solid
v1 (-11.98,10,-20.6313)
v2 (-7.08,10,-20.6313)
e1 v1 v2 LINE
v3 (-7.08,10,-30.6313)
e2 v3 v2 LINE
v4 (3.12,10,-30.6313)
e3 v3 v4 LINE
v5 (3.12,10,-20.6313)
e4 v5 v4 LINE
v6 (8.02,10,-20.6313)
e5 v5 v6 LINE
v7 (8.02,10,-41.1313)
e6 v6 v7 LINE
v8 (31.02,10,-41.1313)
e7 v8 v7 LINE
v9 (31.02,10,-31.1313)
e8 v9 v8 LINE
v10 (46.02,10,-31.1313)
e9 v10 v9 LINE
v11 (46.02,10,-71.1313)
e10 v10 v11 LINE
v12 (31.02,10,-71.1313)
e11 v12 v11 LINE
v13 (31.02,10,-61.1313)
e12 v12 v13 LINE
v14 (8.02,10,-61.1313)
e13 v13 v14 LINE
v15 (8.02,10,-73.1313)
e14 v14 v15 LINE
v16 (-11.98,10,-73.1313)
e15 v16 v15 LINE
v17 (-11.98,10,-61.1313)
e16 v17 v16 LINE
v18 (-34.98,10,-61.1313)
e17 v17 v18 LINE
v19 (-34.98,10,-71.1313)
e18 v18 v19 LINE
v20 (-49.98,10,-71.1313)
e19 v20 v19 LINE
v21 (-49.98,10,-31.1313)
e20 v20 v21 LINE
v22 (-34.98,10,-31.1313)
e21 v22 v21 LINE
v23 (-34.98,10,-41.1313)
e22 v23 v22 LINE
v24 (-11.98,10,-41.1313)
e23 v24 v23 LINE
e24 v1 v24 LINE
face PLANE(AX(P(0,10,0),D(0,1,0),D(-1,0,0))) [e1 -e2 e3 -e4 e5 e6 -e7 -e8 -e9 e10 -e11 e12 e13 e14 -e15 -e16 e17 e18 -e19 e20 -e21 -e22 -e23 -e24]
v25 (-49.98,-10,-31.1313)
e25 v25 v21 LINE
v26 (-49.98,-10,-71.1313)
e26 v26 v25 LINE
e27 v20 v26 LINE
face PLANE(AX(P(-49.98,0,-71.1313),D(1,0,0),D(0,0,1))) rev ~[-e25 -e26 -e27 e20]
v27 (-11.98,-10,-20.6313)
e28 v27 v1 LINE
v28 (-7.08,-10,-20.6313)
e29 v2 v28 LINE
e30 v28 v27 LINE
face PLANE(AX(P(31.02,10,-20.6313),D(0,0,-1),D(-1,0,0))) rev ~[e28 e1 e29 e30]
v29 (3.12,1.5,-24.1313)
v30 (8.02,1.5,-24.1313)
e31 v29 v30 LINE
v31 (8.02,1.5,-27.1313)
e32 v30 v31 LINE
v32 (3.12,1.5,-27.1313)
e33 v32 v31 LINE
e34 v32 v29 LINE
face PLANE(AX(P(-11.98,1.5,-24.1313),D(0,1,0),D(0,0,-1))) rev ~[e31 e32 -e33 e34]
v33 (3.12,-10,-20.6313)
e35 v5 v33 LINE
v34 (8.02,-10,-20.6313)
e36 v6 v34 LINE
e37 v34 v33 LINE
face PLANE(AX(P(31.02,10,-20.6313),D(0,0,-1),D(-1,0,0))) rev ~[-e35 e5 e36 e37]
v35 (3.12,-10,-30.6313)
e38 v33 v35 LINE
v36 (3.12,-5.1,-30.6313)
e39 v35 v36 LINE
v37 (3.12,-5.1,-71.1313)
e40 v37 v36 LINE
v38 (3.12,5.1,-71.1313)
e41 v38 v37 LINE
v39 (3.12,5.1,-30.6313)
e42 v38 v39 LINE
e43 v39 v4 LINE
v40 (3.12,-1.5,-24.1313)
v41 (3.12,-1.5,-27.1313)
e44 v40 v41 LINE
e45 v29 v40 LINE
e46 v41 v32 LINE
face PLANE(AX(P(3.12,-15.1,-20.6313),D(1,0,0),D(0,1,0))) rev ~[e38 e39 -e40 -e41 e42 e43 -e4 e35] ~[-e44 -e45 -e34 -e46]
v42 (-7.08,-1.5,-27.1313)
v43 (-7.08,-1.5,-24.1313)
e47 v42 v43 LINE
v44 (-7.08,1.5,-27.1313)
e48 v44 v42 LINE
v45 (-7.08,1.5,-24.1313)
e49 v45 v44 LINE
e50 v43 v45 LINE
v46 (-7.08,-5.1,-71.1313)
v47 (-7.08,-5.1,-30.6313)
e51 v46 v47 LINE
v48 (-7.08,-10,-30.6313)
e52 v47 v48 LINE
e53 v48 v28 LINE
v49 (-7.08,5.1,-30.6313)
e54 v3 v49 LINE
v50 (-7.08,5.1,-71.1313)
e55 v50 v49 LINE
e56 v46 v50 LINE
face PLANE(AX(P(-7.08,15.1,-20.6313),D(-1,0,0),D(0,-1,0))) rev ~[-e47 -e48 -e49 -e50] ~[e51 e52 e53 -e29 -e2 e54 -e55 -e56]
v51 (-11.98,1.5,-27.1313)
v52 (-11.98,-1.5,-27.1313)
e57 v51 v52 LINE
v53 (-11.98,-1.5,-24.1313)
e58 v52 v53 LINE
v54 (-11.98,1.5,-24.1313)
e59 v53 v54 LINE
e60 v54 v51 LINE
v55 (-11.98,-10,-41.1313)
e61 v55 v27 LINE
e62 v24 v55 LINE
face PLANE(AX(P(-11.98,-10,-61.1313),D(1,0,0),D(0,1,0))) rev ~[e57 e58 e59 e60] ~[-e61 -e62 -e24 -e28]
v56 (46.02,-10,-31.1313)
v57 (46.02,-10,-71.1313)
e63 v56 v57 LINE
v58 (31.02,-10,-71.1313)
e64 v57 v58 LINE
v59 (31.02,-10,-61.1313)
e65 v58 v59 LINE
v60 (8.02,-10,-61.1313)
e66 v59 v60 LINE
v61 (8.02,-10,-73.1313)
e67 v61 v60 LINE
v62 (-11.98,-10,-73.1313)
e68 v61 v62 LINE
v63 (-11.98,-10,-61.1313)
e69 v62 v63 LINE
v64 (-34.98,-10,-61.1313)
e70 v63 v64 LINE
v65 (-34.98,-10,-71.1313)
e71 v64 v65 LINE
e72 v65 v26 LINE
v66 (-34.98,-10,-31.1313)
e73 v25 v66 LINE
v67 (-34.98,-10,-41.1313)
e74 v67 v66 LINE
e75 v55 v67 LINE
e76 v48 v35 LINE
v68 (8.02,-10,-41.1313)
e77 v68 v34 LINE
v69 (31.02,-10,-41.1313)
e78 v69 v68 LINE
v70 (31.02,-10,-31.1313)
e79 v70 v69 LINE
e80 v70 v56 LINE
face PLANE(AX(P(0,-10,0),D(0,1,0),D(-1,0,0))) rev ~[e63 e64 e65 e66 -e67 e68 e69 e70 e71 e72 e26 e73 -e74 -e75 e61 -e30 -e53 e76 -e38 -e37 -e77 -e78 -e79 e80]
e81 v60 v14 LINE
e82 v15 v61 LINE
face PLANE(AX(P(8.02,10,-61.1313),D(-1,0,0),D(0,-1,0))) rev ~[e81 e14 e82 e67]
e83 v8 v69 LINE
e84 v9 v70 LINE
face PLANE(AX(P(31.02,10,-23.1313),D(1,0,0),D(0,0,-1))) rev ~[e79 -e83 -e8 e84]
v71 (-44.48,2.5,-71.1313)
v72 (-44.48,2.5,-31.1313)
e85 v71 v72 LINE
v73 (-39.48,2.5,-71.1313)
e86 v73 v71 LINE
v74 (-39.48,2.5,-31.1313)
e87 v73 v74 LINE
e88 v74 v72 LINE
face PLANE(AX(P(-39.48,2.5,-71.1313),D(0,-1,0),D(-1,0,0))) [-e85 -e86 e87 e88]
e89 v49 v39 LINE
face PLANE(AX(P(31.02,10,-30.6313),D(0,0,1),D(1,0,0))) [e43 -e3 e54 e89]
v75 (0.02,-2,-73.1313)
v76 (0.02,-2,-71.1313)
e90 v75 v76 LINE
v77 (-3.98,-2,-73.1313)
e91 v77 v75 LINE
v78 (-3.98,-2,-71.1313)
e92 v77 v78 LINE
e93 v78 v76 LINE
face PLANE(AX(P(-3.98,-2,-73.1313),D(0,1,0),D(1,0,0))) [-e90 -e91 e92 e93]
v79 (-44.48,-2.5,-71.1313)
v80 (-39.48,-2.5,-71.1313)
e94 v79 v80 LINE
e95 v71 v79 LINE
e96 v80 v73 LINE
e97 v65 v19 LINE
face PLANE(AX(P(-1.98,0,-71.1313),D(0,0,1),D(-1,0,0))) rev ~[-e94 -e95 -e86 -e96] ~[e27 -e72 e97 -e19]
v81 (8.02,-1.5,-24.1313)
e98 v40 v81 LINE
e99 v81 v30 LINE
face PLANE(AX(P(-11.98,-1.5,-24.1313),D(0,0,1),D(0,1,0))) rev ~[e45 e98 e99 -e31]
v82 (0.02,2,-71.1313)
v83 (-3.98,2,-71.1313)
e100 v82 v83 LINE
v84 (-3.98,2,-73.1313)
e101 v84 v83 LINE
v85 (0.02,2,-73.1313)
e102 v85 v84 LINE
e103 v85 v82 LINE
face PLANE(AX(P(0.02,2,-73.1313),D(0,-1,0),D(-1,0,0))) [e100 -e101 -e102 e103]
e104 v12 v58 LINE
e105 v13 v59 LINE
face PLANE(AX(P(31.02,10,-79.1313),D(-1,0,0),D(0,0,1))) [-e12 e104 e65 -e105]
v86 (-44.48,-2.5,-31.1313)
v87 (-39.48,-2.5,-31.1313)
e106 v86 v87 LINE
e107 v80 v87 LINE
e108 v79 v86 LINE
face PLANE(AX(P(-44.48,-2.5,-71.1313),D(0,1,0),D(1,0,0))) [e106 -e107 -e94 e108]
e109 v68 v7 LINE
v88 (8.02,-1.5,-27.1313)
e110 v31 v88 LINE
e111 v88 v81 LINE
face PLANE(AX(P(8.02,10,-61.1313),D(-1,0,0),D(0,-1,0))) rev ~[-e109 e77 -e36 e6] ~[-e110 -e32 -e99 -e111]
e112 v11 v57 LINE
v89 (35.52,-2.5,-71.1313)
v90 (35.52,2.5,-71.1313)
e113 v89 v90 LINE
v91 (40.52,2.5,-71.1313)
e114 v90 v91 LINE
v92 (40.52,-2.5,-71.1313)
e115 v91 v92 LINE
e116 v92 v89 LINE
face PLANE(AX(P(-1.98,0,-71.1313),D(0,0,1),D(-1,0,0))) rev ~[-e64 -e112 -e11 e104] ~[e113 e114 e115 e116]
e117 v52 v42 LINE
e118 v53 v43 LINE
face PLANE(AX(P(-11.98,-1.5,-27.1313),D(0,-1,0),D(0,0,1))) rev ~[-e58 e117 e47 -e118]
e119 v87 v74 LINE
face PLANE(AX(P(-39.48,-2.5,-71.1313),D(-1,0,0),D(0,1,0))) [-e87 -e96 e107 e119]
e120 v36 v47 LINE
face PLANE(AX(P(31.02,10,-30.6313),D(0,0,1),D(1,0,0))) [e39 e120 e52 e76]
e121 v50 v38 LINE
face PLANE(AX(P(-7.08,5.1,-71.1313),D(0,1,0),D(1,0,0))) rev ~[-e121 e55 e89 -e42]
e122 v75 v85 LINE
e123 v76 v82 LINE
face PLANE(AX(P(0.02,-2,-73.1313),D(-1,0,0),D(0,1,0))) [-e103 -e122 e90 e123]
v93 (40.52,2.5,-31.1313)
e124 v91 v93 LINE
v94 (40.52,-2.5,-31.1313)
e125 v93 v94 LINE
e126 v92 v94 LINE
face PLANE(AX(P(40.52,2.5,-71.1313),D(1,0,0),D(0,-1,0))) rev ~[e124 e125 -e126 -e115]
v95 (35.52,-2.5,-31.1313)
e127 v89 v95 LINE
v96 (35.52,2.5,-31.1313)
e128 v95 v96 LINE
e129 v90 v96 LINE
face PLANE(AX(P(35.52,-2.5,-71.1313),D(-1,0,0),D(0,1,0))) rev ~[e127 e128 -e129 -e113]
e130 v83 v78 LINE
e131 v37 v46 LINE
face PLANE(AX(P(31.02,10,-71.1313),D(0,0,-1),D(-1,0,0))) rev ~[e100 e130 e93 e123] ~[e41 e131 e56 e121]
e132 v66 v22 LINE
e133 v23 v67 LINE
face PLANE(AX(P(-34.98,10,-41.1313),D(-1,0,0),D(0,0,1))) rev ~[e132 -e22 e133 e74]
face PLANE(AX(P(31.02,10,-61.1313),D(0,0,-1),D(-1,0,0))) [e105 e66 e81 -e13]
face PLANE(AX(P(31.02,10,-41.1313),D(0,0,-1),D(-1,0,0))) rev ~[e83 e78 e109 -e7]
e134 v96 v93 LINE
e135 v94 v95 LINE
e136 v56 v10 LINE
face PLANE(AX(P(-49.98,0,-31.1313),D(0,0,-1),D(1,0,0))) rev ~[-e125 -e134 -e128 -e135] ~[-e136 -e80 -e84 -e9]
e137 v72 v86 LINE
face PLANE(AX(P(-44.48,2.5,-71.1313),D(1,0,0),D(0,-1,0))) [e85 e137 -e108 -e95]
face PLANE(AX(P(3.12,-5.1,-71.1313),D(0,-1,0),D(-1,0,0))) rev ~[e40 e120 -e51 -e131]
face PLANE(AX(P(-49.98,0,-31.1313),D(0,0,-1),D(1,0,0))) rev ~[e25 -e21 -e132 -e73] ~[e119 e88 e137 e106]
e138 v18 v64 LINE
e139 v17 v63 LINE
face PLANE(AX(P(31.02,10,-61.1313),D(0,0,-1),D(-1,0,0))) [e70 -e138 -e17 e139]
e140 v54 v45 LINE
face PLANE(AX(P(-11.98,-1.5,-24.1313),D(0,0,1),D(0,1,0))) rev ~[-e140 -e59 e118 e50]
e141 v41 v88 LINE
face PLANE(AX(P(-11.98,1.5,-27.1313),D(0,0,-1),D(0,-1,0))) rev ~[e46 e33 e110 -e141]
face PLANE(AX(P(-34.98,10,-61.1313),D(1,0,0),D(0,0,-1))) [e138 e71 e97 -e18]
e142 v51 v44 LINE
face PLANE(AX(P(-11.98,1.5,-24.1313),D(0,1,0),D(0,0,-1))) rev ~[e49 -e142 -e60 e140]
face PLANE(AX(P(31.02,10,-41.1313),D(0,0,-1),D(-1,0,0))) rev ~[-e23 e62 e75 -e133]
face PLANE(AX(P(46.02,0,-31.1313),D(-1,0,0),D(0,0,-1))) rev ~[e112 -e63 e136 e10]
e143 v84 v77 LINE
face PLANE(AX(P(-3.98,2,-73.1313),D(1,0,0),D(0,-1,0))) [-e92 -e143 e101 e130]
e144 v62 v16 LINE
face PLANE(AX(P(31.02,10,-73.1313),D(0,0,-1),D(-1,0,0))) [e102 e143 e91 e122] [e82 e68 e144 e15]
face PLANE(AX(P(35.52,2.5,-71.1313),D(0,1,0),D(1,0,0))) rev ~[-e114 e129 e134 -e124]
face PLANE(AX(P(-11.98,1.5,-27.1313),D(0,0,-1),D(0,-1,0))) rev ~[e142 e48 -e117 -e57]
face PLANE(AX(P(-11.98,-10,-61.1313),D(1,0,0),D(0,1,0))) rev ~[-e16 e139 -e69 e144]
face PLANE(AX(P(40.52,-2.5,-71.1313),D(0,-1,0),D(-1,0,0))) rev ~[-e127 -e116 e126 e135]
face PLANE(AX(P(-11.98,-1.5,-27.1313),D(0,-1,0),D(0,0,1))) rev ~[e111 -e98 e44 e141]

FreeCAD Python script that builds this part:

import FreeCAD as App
import Part
import Sketcher

V = App.Vector
Q = App.Units.Quantity

doc = App.newDocument("Part")
body = doc.addObject("PartDesign::Body", "Body")

sketch1 = doc.addObject("Sketcher::SketchObject", "Sketch")
body.addObject(sketch1)
sketch1.AttachmentSupport = (doc.XZ_Plane, [""])
sketch1.MapMode = "FlatFace"
sketch1.addGeometry([
    Part.LineSegment(V(-50, -71, 0), V(-50, -31, 0)),
    Part.LineSegment(V(-50, -31, 0), V(46, -31, 0)),
    Part.LineSegment(V(46, -31, 0), V(46, -71, 0)),
    Part.LineSegment(V(46, -71, 0), V(-50, -71, 0)),
], False)
sketch1.addConstraint([
    Sketcher.Constraint("Coincident", 0, 2, 1, 1),
    Sketcher.Constraint("Coincident", 1, 2, 2, 1),
    Sketcher.Constraint("Coincident", 2, 2, 3, 1),
    Sketcher.Constraint("Coincident", 3, 2, 0, 1),
    Sketcher.Constraint("Vertical", 0),
    Sketcher.Constraint("Horizontal", 1),
    Sketcher.Constraint("Vertical", 2),
    Sketcher.Constraint("Horizontal", 3),
    Sketcher.Constraint("DistanceY", 0, 1, 0, 2, Q("40 mm")),
    Sketcher.Constraint("DistanceX", 1, 1, 1, 2, Q("96 mm")),
    Sketcher.Constraint("DistanceX", 0, 2, -1, 1, Q("49.98 mm")),
    Sketcher.Constraint("DistanceY", 0, 2, -1, 1, Q("31.1313 mm")),
])
pad1 = doc.addObject("PartDesign::Pad", "Pad")
body.addObject(pad1)
pad1.Profile = sketch1
pad1.Length = 20
pad1.Midplane = True

sketch2 = doc.addObject("Sketcher::SketchObject", "Sketch001")
body.addObject(sketch2)
sketch2.AttachmentSupport = (doc.XY_Plane, [""])
sketch2.MapMode = "FlatFace"
sketch2.AttachmentOffset = App.Placement(V(0, 0, -71.1313), App.Rotation())
sketch2.addGeometry([
    Part.LineSegment(V(36, -2, 0), V(36, 2, 0)),
    Part.LineSegment(V(36, 2, 0), V(41, 2, 0)),
    Part.LineSegment(V(41, 2, 0), V(41, -2, 0)),
    Part.LineSegment(V(41, -2, 0), V(36, -2, 0)),
    Part.LineSegment(V(-44, 2, 0), V(-39, 2, 0)),
    Part.LineSegment(V(-39, 2, 0), V(-39, -2, 0)),
    Part.LineSegment(V(-39, -2, 0), V(-44, -2, 0)),
    Part.LineSegment(V(-44, -2, 0), V(-44, 2, 0)),
], False)
sketch2.addConstraint([
    Sketcher.Constraint("Coincident", 0, 2, 1, 1),
    Sketcher.Constraint("Coincident", 1, 2, 2, 1),
    Sketcher.Constraint("Coincident", 2, 2, 3, 1),
    Sketcher.Constraint("Coincident", 3, 2, 0, 1),
    Sketcher.Constraint("Coincident", 4, 2, 5, 1),
    Sketcher.Constraint("Coincident", 5, 2, 6, 1),
    Sketcher.Constraint("Coincident", 6, 2, 7, 1),
    Sketcher.Constraint("Coincident", 7, 2, 4, 1),
    Sketcher.Constraint("Vertical", 0),
    Sketcher.Constraint("Horizontal", 1),
    Sketcher.Constraint("Vertical", 2),
    Sketcher.Constraint("Horizontal", 3),
    Sketcher.Constraint("Horizontal", 4),
    Sketcher.Constraint("Vertical", 5),
    Sketcher.Constraint("Horizontal", 6),
    Sketcher.Constraint("Vertical", 7),
    Sketcher.Constraint("Horizontal", 1, 2, 4, 2),
    Sketcher.Constraint("Horizontal", 3, 2, 5, 2),
    Sketcher.Constraint("Equal", 3, 4),
    Sketcher.Constraint("Equal", 6, 0),
    Sketcher.Constraint("DistanceX", 1, 1, 1, 2, Q("5 mm")),
    Sketcher.Constraint("DistanceX", 4, 2, 0, 2, Q("75 mm")),
    Sketcher.Constraint("DistanceY", -1, 1, 0, 2, Q("2.5 mm")),
    Sketcher.Constraint("DistanceX", -1, 1, 0, 2, Q("35.52 mm")),
])
pocket1 = doc.addObject("PartDesign::Pocket", "Pocket")
body.addObject(pocket1)
pocket1.Profile = sketch2
pocket1.Type = "ThroughAll"
pocket1.Reversed = True

sketch3 = doc.addObject("Sketcher::SketchObject", "Sketch002")
body.addObject(sketch3)
sketch3.AttachmentSupport = (doc.XZ_Plane, [""])
sketch3.MapMode = "FlatFace"
sketch3.AttachmentOffset = App.Placement(V(0, 0, -10), App.Rotation())
sketch3.addGeometry([
    Part.LineSegment(V(31, -79, 0), V(-35, -79, 0)),
    Part.LineSegment(V(-35, -79, 0), V(-35, -61, 0)),
    Part.LineSegment(V(-35, -61, 0), V(31, -61, 0)),
    Part.LineSegment(V(31, -61, 0), V(31, -79, 0)),
    Part.LineSegment(V(-35, -41, 0), V(-35, -23, 0)),
    Part.LineSegment(V(-35, -23, 0), V(31, -23, 0)),
    Part.LineSegment(V(31, -23, 0), V(31, -41, 0)),
    Part.LineSegment(V(31, -41, 0), V(-35, -41, 0)),
], False)
sketch3.addConstraint([
    Sketcher.Constraint("Coincident", 0, 2, 1, 1),
    Sketcher.Constraint("Coincident", 1, 2, 2, 1),
    Sketcher.Constraint("Coincident", 2, 2, 3, 1),
    Sketcher.Constraint("Coincident", 3, 2, 0, 1),
    Sketcher.Constraint("Coincident", 4, 2, 5, 1),
    Sketcher.Constraint("Coincident", 5, 2, 6, 1),
    Sketcher.Constraint("Coincident", 6, 2, 7, 1),
    Sketcher.Constraint("Coincident", 7, 2, 4, 1),
    Sketcher.Constraint("Horizontal", 0),
    Sketcher.Constraint("Vertical", 1),
    Sketcher.Constraint("Horizontal", 2),
    Sketcher.Constraint("Vertical", 3),
    Sketcher.Constraint("Vertical", 4),
    Sketcher.Constraint("Horizontal", 5),
    Sketcher.Constraint("Vertical", 6),
    Sketcher.Constraint("Horizontal", 7),
    Sketcher.Constraint("Vertical", 1, 2, 4, 2),
    Sketcher.Constraint("Vertical", 3, 2, 5, 2),
    Sketcher.Constraint("Equal", 3, 4),
    Sketcher.Constraint("DistanceY", 1, 1, 1, 2, Q("18 mm")),
    Sketcher.Constraint("DistanceX", 0, 2, 0, 1, Q("66 mm")),
    Sketcher.Constraint("DistanceY", 1, 2, 4, 2, Q("38 mm")),
    Sketcher.Constraint("DistanceX", 0, 2, -1, 1, Q("34.98 mm")),
    Sketcher.Constraint("DistanceY", 0, 2, -1, 1, Q("79.1313 mm")),
])
pocket2 = doc.addObject("PartDesign::Pocket", "Pocket001")
body.addObject(pocket2)
pocket2.Profile = sketch3
pocket2.Type = "ThroughAll"
pocket2.Reversed = True

sketch4 = doc.addObject("Sketcher::SketchObject", "Sketch003")
body.addObject(sketch4)
sketch4.AttachmentSupport = (doc.XY_Plane, [""])
sketch4.MapMode = "FlatFace"
sketch4.AttachmentOffset = App.Placement(V(0, 0, -61.1313), App.Rotation())
sketch4.addGeometry([
    Part.LineSegment(V(-12, -10, 0), V(-12, 10, 0)),
    Part.LineSegment(V(-12, 10, 0), V(8, 10, 0)),
    Part.LineSegment(V(8, 10, 0), V(8, -10, 0)),
    Part.LineSegment(V(8, -10, 0), V(-12, -10, 0)),
], False)
sketch4.addConstraint([
    Sketcher.Constraint("Coincident", 0, 2, 1, 1),
    Sketcher.Constraint("Coincident", 1, 2, 2, 1),
    Sketcher.Constraint("Coincident", 2, 2, 3, 1),
    Sketcher.Constraint("Coincident", 3, 2, 0, 1),
    Sketcher.Constraint("Vertical", 0),
    Sketcher.Constraint("Horizontal", 1),
    Sketcher.Constraint("Vertical", 2),
    Sketcher.Constraint("Horizontal", 3),
    Sketcher.Constraint("Equal", 3, 0),
    Sketcher.Constraint("DistanceX", 1, 1, 1, 2, Q("20 mm")),
    Sketcher.Constraint("DistanceY", -1, 1, 0, 2, Q("10 mm")),
    Sketcher.Constraint("DistanceX", 0, 2, -1, 1, Q("11.98 mm")),
])
pad2 = doc.addObject("PartDesign::Pad", "Pad001")
body.addObject(pad2)
pad2.Profile = sketch4
pad2.Type = "TwoLengths"
pad2.Length = 12
pad2.Length2 = 40.5
pad2.Reversed = True

sketch5 = doc.addObject("Sketcher::SketchObject", "Sketch004")
body.addObject(sketch5)
sketch5.AttachmentSupport = (doc.XY_Plane, [""])
sketch5.MapMode = "FlatFace"
sketch5.AttachmentOffset = App.Placement(V(0, 0, -71.1313), App.Rotation())
sketch5.addGeometry([
    Part.LineSegment(V(-7, -5, 0), V(-7, 5, 0)),
    Part.LineSegment(V(-7, 5, 0), V(3, 5, 0)),
    Part.LineSegment(V(3, 5, 0), V(3, -5, 0)),
    Part.LineSegment(V(3, -5, 0), V(-7, -5, 0)),
], False)
sketch5.addConstraint([
    Sketcher.Constraint("Coincident", 0, 2, 1, 1),
    Sketcher.Constraint("Coincident", 1, 2, 2, 1),
    Sketcher.Constraint("Coincident", 2, 2, 3, 1),
    Sketcher.Constraint("Coincident", 3, 2, 0, 1),
    Sketcher.Constraint("Vertical", 0),
    Sketcher.Constraint("Horizontal", 1),
    Sketcher.Constraint("Vertical", 2),
    Sketcher.Constraint("Horizontal", 3),
    Sketcher.Constraint("Equal", 3, 0),
    Sketcher.Constraint("DistanceX", 1, 1, 1, 2, Q("10.2 mm")),
    Sketcher.Constraint("DistanceY", -1, 1, 0, 2, Q("5.1 mm")),
    Sketcher.Constraint("DistanceX", 0, 2, -1, 1, Q("7.08 mm")),
])
pocket3 = doc.addObject("PartDesign::Pocket", "Pocket002")
body.addObject(pocket3)
pocket3.Profile = sketch5
pocket3.Type = "ThroughAll"
pocket3.Reversed = True

sketch6 = doc.addObject("Sketcher::SketchObject", "Sketch005")
body.addObject(sketch6)
sketch6.AttachmentSupport = (doc.XY_Plane, [""])
sketch6.MapMode = "FlatFace"
sketch6.AttachmentOffset = App.Placement(V(0, 0, -20.6313), App.Rotation())
sketch6.addGeometry([
    Part.LineSegment(V(-7, 15, 0), V(-7, -15, 0)),
    Part.LineSegment(V(-7, -15, 0), V(3, -15, 0)),
    Part.LineSegment(V(3, -15, 0), V(3, 15, 0)),
    Part.LineSegment(V(3, 15, 0), V(-7, 15, 0)),
], False)
sketch6.addConstraint([
    Sketcher.Constraint("Coincident", 0, 2, 1, 1),
    Sketcher.Constraint("Coincident", 1, 2, 2, 1),
    Sketcher.Constraint("Coincident", 2, 2, 3, 1),
    Sketcher.Constraint("Coincident", 3, 2, 0, 1),
    Sketcher.Constraint("Vertical", 0),
    Sketcher.Constraint("Horizontal", 1),
    Sketcher.Constraint("Vertical", 2),
    Sketcher.Constraint("Horizontal", 3),
    Sketcher.Constraint("DistanceX", 1, 1, 1, 2, Q("10.2 mm")),
    Sketcher.Constraint("DistanceY", 0, 2, 0, 1, Q("30.2 mm")),
    Sketcher.Constraint("DistanceY", 0, 2, -1, 1, Q("15.1 mm")),
    Sketcher.Constraint("DistanceX", 0, 2, -1, 1, Q("7.08 mm")),
])
pocket4 = doc.addObject("PartDesign::Pocket", "Pocket003")
body.addObject(pocket4)
pocket4.Profile = sketch6
pocket4.Length = 10

sketch7 = doc.addObject("Sketcher::SketchObject", "Sketch006")
body.addObject(sketch7)
sketch7.AttachmentSupport = (doc.YZ_Plane, [""])
sketch7.MapMode = "FlatFace"
sketch7.AttachmentOffset = App.Placement(V(0, 0, -11.98), App.Rotation())
sketch7.addGeometry([
    Part.LineSegment(V(1.5, -27.1, 0), V(-1.5, -27.1, 0)),
    Part.LineSegment(V(-1.5, -27.1, 0), V(-1.5, -24.1, 0)),
    Part.LineSegment(V(-1.5, -24.1, 0), V(1.5, -24.1, 0)),
    Part.LineSegment(V(1.5, -24.1, 0), V(1.5, -27.1, 0)),
], False)
sketch7.addConstraint([
    Sketcher.Constraint("Coincident", 0, 2, 1, 1),
    Sketcher.Constraint("Coincident", 1, 2, 2, 1),
    Sketcher.Constraint("Coincident", 2, 2, 3, 1),
    Sketcher.Constraint("Coincident", 3, 2, 0, 1),
    Sketcher.Constraint("Horizontal", 0),
    Sketcher.Constraint("Vertical", 1),
    Sketcher.Constraint("Horizontal", 2),
    Sketcher.Constraint("Vertical", 3),
    Sketcher.Constraint("Equal", 2, 1),
    Sketcher.Constraint("DistanceX", 0, 2, 0, 1, Q("3 mm")),
    Sketcher.Constraint("DistanceX", 0, 2, -1, 1, Q("1.5 mm")),
    Sketcher.Constraint("DistanceY", 0, 2, -1, 1, Q("27.1313 mm")),
])
pocket5 = doc.addObject("PartDesign::Pocket", "Pocket004")
body.addObject(pocket5)
pocket5.Profile = sketch7
pocket5.Type = "ThroughAll"
pocket5.Reversed = True

sketch8 = doc.addObject("Sketcher::SketchObject", "Sketch007")
body.addObject(sketch8)
sketch8.AttachmentSupport = (doc.XY_Plane, [""])
sketch8.MapMode = "FlatFace"
sketch8.AttachmentOffset = App.Placement(V(0, 0, -73.1313), App.Rotation())
sketch8.addGeometry([
    Part.LineSegment(V(0, -2, 0), V(-4, -2, 0)),
    Part.LineSegment(V(-4, -2, 0), V(-4, 2, 0)),
    Part.LineSegment(V(-4, 2, 0), V(0, 2, 0)),
    Part.LineSegment(V(0, 2, 0), V(0, -2, 0)),
], False)
sketch8.addConstraint([
    Sketcher.Constraint("Coincident", 0, 2, 1, 1),
    Sketcher.Constraint("Coincident", 1, 2, 2, 1),
    Sketcher.Constraint("Coincident", 2, 2, 3, 1),
    Sketcher.Constraint("Coincident", 3, 2, 0, 1),
    Sketcher.Constraint("Horizontal", 0),
    Sketcher.Constraint("Vertical", 1),
    Sketcher.Constraint("Horizontal", 2),
    Sketcher.Constraint("Vertical", 3),
    Sketcher.Constraint("Equal", 2, 1),
    Sketcher.Constraint("DistanceX", 0, 2, 0, 1, Q("4 mm")),
    Sketcher.Constraint("DistanceY", 0, 2, -1, 1, Q("2 mm")),
    Sketcher.Constraint("DistanceX", 0, 2, -1, 1, Q("3.98 mm")),
])
pocket6 = doc.addObject("PartDesign::Pocket", "Pocket005")
body.addObject(pocket6)
pocket6.Profile = sketch8
pocket6.Length = 20
pocket6.Reversed = True

doc.recompute()
